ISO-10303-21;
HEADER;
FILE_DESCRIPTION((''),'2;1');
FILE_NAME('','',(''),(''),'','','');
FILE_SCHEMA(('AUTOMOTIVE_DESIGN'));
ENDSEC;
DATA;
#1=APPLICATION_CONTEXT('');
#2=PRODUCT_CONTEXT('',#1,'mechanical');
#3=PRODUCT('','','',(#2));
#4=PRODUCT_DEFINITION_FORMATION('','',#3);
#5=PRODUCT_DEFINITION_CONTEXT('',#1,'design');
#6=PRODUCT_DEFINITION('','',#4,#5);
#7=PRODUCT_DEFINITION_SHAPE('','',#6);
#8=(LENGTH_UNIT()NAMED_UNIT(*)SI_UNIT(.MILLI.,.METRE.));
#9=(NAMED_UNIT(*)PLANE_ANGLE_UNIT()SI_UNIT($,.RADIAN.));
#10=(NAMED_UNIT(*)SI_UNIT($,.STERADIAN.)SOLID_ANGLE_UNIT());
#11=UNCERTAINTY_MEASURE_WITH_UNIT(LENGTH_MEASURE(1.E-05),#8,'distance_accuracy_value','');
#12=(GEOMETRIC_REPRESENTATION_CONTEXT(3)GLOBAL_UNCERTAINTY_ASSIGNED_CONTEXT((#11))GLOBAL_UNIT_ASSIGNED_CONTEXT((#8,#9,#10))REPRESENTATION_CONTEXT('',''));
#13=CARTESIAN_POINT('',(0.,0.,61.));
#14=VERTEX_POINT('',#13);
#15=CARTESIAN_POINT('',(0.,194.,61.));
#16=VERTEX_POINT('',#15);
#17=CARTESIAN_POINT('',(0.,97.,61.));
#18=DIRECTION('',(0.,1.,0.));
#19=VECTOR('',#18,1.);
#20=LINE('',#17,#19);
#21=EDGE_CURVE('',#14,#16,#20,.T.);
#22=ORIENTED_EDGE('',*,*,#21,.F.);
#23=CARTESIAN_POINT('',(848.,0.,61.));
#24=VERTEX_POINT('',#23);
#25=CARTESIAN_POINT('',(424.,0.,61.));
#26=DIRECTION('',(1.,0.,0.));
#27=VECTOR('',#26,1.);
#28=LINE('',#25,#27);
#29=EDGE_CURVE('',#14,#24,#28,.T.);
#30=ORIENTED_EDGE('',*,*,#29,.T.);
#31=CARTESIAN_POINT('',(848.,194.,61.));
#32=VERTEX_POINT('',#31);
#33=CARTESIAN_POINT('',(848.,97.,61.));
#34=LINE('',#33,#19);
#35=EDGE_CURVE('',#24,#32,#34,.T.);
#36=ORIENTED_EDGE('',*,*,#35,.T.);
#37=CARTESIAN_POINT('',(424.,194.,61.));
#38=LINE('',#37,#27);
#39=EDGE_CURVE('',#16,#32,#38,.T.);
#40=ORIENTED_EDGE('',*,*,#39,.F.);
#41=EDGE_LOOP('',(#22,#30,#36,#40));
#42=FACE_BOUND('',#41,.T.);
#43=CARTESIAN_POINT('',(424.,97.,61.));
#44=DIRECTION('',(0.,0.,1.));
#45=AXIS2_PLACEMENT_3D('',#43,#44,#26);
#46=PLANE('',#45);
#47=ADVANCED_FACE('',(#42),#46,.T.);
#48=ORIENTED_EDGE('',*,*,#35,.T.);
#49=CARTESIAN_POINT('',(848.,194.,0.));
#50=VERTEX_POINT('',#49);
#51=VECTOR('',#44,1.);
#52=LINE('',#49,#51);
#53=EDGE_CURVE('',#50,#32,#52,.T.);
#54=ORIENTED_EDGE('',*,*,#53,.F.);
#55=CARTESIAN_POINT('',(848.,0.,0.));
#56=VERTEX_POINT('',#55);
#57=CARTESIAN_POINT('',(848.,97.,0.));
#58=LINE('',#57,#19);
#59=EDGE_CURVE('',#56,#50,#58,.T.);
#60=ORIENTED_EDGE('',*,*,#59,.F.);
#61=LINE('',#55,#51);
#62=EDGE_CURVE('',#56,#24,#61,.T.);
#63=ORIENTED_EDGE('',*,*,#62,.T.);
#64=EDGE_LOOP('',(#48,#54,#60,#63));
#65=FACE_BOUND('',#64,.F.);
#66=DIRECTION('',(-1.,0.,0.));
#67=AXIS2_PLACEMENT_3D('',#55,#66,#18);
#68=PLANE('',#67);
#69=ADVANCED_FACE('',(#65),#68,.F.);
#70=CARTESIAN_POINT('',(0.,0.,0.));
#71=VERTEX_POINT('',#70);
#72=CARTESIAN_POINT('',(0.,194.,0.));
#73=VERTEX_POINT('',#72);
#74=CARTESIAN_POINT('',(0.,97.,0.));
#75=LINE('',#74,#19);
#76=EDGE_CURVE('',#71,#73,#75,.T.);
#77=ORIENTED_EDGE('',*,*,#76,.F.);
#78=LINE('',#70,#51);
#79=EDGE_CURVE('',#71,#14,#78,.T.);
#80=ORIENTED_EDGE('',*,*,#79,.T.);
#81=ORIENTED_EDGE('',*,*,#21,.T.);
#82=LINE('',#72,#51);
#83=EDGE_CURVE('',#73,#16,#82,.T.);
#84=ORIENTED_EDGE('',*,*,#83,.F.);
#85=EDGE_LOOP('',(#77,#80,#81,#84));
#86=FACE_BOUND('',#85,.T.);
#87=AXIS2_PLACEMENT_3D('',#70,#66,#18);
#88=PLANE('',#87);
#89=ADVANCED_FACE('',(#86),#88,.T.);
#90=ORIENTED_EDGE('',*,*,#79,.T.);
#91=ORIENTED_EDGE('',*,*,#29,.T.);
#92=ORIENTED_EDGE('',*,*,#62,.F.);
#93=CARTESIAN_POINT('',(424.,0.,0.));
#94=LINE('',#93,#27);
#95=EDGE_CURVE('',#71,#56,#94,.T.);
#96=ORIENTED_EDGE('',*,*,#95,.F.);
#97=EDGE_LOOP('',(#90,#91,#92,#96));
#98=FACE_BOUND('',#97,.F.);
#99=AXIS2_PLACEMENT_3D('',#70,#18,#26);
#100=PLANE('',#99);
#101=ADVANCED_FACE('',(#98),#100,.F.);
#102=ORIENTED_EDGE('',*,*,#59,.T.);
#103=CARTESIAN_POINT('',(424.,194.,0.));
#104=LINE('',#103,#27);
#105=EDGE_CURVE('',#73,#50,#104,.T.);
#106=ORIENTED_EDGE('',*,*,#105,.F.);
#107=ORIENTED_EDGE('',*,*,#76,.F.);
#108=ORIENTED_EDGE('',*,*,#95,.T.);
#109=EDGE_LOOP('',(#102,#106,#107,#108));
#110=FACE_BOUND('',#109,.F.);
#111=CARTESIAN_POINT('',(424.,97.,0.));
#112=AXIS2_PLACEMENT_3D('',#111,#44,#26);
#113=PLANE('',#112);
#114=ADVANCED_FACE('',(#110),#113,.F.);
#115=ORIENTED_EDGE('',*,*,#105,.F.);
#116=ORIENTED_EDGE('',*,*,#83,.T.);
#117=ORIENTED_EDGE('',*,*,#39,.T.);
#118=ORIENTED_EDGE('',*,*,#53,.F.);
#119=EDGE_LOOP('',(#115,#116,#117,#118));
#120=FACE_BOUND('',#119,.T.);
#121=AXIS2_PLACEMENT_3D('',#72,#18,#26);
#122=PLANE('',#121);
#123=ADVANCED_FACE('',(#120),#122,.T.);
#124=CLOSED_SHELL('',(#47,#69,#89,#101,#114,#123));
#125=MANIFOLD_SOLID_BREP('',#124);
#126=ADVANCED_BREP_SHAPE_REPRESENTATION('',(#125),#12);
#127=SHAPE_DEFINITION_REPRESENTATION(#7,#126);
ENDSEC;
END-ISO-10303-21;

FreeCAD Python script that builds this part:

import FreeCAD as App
import Part
import Sketcher
Q = App.Units.Quantity


def add_polygon(sketch, points):
    """Adds a closed chain of lines whose ends are joined by coincident constraints."""
    first, n = sketch.GeometryCount, len(points)
    for a, b in zip(points, points[1:] + points[:1]):
        sketch.addGeometry(Part.LineSegment(App.Vector(*a, 0), App.Vector(*b, 0)), False)
    for i in range(n):
        sketch.addConstraint(Sketcher.Constraint("Coincident", first + i, 2, first + (i + 1) % n, 1))

doc = App.newDocument("Part")
body = doc.addObject("PartDesign::Body", "Body")

# Sketch on XY plane
sketch1 = body.newObject("Sketcher::SketchObject", "Sketch")
sketch1.AttachmentSupport = (doc.getObject("XY_Plane"), [""])
sketch1.MapMode = "FlatFace"
add_polygon(sketch1, [(0, 194), (0, 0), (848, 0), (848, 194)])  # lines 0-3
sketch1.addConstraint([
    Sketcher.Constraint("Vertical", 0),
    Sketcher.Constraint("Horizontal", 1),
    Sketcher.Constraint("Vertical", 2),
    Sketcher.Constraint("Horizontal", 3),
    Sketcher.Constraint("Coincident", 0, 2, -1, 1),
    Sketcher.Constraint("DistanceX", 1, 1, 1, 2, Q("848 mm")),
    Sketcher.Constraint("DistanceY", 0, 2, 0, 1, Q("194 mm")),
])
pad1 = body.newObject("PartDesign::Pad", "Pad")
pad1.Profile = sketch1
pad1.Length = 61

doc.recompute()
